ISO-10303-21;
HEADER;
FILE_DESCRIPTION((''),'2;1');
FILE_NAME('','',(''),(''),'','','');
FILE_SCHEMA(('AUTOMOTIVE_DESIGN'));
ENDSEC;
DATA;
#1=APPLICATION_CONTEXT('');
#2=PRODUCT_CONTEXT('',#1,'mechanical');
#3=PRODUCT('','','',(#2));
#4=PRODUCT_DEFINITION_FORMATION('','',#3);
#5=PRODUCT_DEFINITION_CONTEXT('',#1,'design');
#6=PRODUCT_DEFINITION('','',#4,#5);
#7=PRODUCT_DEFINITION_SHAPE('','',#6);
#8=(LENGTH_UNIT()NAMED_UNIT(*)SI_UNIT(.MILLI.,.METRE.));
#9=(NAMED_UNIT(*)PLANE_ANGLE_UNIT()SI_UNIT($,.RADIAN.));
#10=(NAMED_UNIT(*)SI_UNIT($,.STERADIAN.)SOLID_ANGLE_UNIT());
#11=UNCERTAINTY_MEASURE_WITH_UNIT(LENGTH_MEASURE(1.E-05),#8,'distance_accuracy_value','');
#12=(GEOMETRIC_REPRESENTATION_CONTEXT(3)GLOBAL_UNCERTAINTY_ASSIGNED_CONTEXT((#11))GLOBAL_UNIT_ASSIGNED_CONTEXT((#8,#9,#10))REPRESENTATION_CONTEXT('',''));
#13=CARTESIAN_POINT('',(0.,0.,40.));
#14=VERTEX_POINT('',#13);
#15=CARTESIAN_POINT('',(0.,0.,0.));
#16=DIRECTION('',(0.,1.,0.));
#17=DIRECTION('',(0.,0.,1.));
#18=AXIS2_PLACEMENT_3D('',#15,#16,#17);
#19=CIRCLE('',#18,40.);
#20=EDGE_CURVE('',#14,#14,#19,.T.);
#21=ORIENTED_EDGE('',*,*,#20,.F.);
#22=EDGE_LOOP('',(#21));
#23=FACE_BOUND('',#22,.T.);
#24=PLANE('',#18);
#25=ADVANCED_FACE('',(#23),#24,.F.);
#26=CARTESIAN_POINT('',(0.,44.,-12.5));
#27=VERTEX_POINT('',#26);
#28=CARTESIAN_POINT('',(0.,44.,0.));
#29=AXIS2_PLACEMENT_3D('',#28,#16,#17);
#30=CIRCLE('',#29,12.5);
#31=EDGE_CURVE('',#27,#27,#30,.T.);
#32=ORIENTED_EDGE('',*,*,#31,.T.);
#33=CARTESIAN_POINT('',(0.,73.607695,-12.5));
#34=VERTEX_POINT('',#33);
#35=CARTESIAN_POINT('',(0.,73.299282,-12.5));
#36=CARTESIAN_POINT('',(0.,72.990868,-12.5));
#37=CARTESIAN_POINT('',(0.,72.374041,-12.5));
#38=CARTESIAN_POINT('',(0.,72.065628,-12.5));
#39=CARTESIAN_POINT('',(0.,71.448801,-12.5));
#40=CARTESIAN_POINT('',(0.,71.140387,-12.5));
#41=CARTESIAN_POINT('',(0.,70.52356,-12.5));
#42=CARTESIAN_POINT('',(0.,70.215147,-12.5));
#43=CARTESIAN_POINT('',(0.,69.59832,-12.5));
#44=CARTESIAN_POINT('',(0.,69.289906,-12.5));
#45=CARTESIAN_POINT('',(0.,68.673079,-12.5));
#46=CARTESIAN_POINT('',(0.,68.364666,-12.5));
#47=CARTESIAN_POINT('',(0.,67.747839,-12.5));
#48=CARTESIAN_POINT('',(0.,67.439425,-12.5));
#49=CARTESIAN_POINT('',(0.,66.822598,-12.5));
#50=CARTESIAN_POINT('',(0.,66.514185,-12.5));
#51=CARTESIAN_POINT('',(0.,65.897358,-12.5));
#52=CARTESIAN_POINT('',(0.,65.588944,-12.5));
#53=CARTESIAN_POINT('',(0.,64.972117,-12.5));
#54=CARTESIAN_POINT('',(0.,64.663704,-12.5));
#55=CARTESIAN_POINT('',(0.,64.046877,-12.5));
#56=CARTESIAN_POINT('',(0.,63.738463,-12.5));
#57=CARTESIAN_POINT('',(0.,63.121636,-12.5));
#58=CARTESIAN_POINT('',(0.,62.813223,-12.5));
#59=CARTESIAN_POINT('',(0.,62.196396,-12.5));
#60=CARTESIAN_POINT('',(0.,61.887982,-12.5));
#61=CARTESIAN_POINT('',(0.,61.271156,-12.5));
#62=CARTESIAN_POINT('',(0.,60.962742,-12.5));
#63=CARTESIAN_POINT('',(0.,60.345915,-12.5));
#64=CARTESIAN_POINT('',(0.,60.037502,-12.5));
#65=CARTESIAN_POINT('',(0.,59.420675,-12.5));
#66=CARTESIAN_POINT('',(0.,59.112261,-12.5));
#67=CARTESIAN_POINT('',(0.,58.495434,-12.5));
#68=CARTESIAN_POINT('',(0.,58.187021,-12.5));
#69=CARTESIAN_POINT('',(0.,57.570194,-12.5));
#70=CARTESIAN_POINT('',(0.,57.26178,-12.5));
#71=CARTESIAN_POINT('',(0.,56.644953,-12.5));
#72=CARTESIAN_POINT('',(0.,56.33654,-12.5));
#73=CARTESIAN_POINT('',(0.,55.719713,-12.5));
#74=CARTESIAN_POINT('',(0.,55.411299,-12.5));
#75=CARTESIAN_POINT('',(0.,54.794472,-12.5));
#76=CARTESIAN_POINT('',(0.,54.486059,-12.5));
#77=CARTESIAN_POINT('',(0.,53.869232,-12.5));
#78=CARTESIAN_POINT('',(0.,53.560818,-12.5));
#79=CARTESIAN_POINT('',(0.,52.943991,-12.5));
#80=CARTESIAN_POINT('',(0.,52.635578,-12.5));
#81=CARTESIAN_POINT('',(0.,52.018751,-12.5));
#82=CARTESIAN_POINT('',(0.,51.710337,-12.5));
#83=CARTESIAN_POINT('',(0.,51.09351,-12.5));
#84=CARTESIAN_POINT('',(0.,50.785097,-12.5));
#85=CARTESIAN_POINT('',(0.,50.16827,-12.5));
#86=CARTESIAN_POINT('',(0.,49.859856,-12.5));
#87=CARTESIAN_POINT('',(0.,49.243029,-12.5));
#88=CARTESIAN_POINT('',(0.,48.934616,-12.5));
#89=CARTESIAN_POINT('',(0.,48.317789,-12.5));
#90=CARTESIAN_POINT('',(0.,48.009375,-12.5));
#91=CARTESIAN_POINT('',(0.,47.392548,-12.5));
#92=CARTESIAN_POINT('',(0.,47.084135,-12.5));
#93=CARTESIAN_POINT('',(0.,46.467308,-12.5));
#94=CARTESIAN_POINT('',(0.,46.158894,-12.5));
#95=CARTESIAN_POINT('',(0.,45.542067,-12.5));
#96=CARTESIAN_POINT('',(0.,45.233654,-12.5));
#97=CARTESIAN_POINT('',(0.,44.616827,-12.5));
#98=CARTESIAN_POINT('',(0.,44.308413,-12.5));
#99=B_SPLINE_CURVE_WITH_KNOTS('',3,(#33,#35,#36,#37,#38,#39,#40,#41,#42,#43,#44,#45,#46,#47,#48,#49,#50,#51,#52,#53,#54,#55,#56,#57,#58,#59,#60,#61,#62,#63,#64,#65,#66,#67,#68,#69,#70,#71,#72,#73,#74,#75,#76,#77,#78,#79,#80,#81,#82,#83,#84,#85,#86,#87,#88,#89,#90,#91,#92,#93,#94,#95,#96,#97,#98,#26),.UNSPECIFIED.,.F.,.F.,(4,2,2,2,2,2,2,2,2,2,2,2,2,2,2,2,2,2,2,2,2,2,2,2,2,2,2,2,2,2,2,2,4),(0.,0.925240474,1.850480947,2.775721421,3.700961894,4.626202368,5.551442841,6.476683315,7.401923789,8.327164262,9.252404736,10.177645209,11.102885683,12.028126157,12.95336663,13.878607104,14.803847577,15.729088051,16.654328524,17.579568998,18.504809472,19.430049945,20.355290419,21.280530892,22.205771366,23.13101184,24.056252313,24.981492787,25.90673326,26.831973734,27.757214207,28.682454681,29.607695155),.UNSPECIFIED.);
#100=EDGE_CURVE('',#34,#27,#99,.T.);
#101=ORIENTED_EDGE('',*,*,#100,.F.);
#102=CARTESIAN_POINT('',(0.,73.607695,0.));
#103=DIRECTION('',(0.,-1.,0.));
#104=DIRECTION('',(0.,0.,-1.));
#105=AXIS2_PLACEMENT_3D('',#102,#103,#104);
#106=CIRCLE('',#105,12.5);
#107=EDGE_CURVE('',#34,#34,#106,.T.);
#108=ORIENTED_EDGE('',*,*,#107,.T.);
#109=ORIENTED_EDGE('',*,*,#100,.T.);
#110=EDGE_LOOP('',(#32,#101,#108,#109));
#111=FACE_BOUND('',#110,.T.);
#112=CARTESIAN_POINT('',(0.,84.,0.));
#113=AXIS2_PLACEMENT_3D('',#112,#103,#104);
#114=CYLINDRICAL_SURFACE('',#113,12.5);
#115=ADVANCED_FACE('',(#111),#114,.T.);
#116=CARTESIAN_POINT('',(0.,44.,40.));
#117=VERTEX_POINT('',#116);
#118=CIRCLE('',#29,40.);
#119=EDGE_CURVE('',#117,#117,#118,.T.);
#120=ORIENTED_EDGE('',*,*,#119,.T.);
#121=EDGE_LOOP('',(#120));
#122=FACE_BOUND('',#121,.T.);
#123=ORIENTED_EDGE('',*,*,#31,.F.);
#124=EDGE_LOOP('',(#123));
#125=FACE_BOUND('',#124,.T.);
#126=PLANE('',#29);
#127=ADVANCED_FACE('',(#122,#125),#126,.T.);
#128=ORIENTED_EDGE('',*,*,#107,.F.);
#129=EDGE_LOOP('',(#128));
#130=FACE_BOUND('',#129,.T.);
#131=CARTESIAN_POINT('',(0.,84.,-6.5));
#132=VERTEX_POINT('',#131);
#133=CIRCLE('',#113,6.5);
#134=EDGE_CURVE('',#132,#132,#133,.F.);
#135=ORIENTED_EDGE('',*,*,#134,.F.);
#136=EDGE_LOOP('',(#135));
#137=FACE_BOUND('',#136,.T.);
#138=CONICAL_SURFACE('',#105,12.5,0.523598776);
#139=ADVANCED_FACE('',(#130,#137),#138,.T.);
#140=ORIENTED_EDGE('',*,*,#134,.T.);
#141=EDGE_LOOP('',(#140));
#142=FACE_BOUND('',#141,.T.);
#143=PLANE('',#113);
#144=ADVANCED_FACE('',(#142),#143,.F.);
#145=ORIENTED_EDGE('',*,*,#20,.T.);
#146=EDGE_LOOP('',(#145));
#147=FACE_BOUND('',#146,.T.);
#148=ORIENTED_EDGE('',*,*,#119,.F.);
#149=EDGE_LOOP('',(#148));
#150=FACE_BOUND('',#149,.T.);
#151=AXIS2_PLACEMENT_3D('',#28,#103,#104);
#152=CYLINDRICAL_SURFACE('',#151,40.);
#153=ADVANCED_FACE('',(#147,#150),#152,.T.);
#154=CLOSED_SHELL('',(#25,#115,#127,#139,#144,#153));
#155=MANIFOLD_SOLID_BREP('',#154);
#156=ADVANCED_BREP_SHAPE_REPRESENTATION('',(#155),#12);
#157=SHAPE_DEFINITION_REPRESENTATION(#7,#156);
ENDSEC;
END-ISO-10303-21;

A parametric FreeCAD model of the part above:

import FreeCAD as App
import Part
import Sketcher


def edges_at(feature, points):
    """Names of the edges that pass closest to the given points."""
    edges = feature.Shape.Edges
    near = lambda p: min(range(len(edges)), key=lambda i: edges[i].distToShape(Part.Vertex(*p))[0])
    return sorted({f"Edge{near(p) + 1}" for p in points})

doc = App.newDocument("Part")
body = doc.addObject("PartDesign::Body", "Body")

sketch1 = body.newObject("Sketcher::SketchObject", "Sketch")
sketch1.AttachmentSupport = (doc.getObject("XZ_Plane"), [""])
sketch1.MapMode = "FlatFace"
sketch1.addGeometry(Part.Circle(App.Vector(0, 0, 0), App.Vector(0, 0, 1), 40), False)
sketch1.addConstraint(Sketcher.Constraint("Coincident", 0, 3, -1, 1))
sketch1.addConstraint(Sketcher.Constraint("Diameter", 0, 80.0))
pad1 = body.newObject("PartDesign::Pad", "Pad")
pad1.Profile = sketch1
pad1.Length = 44
pad1.Reversed = True

sketch2 = body.newObject("Sketcher::SketchObject", "Sketch001")
sketch2.AttachmentSupport = (doc.getObject("XZ_Plane"), [""])
sketch2.MapMode = "FlatFace"
sketch2.addGeometry(Part.Circle(App.Vector(0, 0, 0), App.Vector(0, 0, 1), 12), False)
sketch2.addConstraint(Sketcher.Constraint("Coincident", 0, 3, -1, 1))
sketch2.addConstraint(Sketcher.Constraint("Diameter", 0, 25.0))
pad2 = body.newObject("PartDesign::Pad", "Pad001")
pad2.Profile = sketch2
pad2.Length = 84
pad2.Reversed = True
doc.recompute()

chamfer = body.newObject("PartDesign::Chamfer", "Chamfer")
chamfer.Base = (pad2, edges_at(pad2, [(0, 84, 12.5)]))
chamfer.ChamferType = "Two distances"
chamfer.Size = 6
chamfer.Size2 = 10.392305
chamfer.FlipDirection = True

doc.recompute()
